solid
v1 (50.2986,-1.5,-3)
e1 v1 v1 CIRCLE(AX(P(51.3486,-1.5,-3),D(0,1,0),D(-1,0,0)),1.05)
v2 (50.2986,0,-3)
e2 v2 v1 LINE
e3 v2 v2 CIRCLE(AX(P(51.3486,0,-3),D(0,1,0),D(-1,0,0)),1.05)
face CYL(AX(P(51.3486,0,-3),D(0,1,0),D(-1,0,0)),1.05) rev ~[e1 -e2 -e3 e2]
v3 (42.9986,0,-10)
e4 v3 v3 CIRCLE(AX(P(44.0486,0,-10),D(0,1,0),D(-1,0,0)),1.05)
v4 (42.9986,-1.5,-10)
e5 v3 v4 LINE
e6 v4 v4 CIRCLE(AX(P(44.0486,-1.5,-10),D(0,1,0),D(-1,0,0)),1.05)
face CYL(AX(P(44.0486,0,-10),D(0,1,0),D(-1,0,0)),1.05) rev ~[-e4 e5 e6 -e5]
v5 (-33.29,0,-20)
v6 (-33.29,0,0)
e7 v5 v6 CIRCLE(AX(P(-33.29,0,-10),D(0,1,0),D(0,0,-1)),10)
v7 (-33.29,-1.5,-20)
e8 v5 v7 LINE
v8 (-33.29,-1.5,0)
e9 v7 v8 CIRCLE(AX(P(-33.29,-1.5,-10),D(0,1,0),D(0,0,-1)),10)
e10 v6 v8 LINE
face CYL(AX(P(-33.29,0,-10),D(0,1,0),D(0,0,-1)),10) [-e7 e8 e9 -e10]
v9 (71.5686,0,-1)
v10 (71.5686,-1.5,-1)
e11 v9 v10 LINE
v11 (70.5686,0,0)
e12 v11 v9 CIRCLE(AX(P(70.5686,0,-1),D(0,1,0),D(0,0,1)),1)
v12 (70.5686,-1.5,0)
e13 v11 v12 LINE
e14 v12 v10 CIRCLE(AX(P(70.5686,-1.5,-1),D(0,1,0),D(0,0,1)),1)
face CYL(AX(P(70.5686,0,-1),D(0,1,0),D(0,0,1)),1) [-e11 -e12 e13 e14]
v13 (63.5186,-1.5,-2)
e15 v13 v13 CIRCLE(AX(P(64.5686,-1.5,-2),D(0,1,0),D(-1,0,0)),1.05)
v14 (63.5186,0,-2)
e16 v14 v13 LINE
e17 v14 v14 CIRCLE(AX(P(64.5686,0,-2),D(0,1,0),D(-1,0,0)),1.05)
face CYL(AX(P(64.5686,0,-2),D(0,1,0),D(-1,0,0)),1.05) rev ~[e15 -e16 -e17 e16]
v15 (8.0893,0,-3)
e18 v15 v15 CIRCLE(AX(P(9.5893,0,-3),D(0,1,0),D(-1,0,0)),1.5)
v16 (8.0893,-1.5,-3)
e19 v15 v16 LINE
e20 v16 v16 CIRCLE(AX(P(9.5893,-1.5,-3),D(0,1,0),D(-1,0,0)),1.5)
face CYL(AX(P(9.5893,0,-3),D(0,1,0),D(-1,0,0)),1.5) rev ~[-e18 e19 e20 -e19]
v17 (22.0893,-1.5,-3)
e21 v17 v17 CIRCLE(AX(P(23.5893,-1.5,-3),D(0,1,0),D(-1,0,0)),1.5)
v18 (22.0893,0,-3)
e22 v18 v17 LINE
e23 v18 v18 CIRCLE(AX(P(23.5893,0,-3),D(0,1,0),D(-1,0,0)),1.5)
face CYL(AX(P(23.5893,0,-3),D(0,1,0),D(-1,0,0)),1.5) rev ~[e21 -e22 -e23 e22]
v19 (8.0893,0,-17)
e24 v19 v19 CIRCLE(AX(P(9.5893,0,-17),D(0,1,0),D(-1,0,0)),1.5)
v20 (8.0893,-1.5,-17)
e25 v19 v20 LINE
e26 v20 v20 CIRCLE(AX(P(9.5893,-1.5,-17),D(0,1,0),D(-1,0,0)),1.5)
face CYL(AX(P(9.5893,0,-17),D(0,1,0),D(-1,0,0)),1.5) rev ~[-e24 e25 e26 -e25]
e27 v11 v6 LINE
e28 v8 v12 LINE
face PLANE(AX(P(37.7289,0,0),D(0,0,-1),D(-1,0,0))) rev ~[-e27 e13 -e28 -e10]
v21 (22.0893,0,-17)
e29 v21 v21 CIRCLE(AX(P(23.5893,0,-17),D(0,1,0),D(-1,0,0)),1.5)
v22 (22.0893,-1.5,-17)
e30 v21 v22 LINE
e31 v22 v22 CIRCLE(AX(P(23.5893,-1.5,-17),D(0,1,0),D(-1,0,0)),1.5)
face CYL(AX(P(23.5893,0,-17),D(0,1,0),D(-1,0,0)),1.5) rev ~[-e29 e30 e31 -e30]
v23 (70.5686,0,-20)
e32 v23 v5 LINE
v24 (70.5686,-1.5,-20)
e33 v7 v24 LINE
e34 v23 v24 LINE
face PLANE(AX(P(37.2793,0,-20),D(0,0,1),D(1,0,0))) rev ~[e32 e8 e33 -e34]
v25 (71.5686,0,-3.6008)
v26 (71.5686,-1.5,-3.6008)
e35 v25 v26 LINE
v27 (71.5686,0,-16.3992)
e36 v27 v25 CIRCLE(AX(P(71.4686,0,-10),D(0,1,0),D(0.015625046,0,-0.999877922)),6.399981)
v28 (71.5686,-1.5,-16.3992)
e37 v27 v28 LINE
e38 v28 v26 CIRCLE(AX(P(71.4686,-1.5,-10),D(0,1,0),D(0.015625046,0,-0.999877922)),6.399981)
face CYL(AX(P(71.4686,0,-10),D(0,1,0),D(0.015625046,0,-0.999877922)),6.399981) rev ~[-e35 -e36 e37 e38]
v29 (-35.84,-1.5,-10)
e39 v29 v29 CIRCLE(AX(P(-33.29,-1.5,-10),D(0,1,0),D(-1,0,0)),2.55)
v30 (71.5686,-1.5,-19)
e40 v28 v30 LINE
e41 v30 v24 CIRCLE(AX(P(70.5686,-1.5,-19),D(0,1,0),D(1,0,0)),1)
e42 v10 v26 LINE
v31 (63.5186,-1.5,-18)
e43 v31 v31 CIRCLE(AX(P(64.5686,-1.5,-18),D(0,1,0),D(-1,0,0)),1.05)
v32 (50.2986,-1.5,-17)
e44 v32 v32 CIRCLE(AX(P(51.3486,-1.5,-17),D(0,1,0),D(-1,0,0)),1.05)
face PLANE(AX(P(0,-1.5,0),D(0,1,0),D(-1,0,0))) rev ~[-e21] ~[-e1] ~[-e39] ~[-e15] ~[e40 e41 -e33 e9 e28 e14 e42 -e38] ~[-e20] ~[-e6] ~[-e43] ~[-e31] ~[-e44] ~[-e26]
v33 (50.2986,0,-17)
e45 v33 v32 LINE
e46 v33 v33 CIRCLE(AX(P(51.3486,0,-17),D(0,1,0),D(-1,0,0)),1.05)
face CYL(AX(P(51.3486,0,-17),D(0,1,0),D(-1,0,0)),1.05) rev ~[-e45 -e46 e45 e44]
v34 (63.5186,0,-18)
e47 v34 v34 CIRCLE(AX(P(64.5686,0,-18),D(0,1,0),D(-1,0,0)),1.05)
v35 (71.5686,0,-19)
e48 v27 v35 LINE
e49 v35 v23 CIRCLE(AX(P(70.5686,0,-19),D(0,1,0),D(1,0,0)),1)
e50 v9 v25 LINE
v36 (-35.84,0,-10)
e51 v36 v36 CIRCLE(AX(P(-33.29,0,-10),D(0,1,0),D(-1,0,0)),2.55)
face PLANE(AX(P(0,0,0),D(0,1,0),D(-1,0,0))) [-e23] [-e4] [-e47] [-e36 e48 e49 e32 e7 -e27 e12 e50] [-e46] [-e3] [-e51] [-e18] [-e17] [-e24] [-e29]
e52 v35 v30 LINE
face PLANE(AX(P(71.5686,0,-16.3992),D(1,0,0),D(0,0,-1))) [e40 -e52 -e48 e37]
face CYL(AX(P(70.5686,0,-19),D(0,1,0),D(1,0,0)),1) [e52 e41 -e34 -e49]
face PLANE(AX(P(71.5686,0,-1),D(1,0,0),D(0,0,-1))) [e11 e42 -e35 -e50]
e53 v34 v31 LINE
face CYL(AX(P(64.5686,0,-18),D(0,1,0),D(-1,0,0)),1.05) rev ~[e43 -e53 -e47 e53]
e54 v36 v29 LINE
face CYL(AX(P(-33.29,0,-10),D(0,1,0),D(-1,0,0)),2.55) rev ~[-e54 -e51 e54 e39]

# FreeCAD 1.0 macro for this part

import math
import FreeCAD as App
import Part
import Sketcher
from FreeCAD import Vector
Q = App.Units.Quantity

doc = App.newDocument("Part")
body = doc.addObject("PartDesign::Body", "Body")

# Sketch on XZ plane
sketch1 = doc.addObject("Sketcher::SketchObject", "Sketch")
body.addObject(sketch1)
sketch1.AttachmentSupport = (doc.XZ_Plane, [""])
sketch1.MapMode = "FlatFace"
sketch1.addGeometry([
    Part.ArcOfCircle(Part.Circle(Vector(70.5686, -1, 0), Vector(0, 0, 1), 1), math.radians(0), math.radians(90)),  # 0
    Part.LineSegment(Vector(71.5686, -1, 0), Vector(71.5686, -3.6008, 0)),  # 1
    Part.ArcOfCircle(Part.Circle(Vector(71.4686, -10, 0), Vector(0, 0, 1), 6.399981), math.radians(89.104714), math.radians(270.895286)),  # 2
    Part.LineSegment(Vector(71.5686, -16.3992, 0), Vector(71.5686, -19, 0)),  # 3
    Part.ArcOfCircle(Part.Circle(Vector(70.5686, -19, 0), Vector(0, 0, 1), 1), math.radians(-90), math.radians(0)),  # 4
    Part.LineSegment(Vector(70.5686, -20, 0), Vector(-33.29, -20, 0)),  # 5
    Part.ArcOfCircle(Part.Circle(Vector(-33.29, -10, 0), Vector(0, 0, 1), 10), math.radians(90), math.radians(270)),  # 6
    Part.LineSegment(Vector(-33.29, 0, 0), Vector(70.5686, 0, 0)),  # 7
    Part.Circle(Vector(9.5893, -3, 0), Vector(0, 0, 1), 1.5),  # 8
    Part.Circle(Vector(23.5893, -17, 0), Vector(0, 0, 1), 1.5),  # 9
    Part.Circle(Vector(9.5893, -17, 0), Vector(0, 0, 1), 1.5),  # 10
    Part.Circle(Vector(23.5893, -3, 0), Vector(0, 0, 1), 1.5),  # 11
    Part.Circle(Vector(64.5686, -2, 0), Vector(0, 0, 1), 1.05),  # 12
    Part.Circle(Vector(64.5686, -18, 0), Vector(0, 0, 1), 1.05),  # 13
    Part.Circle(Vector(51.3486, -17, 0), Vector(0, 0, 1), 1.05),  # 14
    Part.Circle(Vector(44.0486, -10, 0), Vector(0, 0, 1), 1.05),  # 15
    Part.Circle(Vector(51.3486, -3, 0), Vector(0, 0, 1), 1.05),  # 16
    Part.Circle(Vector(-33.29, -10, 0), Vector(0, 0, 1), 2.55),  # 17
], False)
sketch1.addConstraint([
    Sketcher.Constraint("Tangent", 0, 1, 1, 1),
    Sketcher.Constraint("Coincident", 1, 2, 2, 1),
    Sketcher.Constraint("Coincident", 2, 2, 3, 1),
    Sketcher.Constraint("Tangent", 3, 2, 4, 2),
    Sketcher.Constraint("Tangent", 4, 1, 5, 1),
    Sketcher.Constraint("Tangent", 5, 2, 6, 2),
    Sketcher.Constraint("Tangent", 6, 1, 7, 1),
    Sketcher.Constraint("Tangent", 7, 2, 0, 2),
    Sketcher.Constraint("Vertical", 1),
    Sketcher.Constraint("Vertical", 3),
    Sketcher.Constraint("Horizontal", 5),
    Sketcher.Constraint("Horizontal", 7),
    Sketcher.Constraint("Coincident", 17, 3, 6, 3),
    Sketcher.Constraint("Equal", 0, 4),
    Sketcher.Constraint("Equal", 8, 9),
    Sketcher.Constraint("Equal", 9, 10),
    Sketcher.Constraint("Equal", 10, 11),
    Sketcher.Constraint("Equal", 12, 13),
    Sketcher.Constraint("Equal", 13, 14),
    Sketcher.Constraint("Equal", 14, 15),
    Sketcher.Constraint("Equal", 15, 16),
    Sketcher.Constraint("PointOnObject", 6, 1, -1),
    Sketcher.Constraint("Horizontal", 2, 3, 6, 3),
    Sketcher.Constraint("Horizontal", 9, 3, 10, 3),
    Sketcher.Constraint("Horizontal", 8, 3, 11, 3),
    Sketcher.Constraint("Horizontal", 10, 3, 14, 3),
    Sketcher.Constraint("Horizontal", 6, 3, 15, 3),
    Sketcher.Constraint("Horizontal", 11, 3, 16, 3),
    Sketcher.Constraint("Vertical", 0, 3, 4, 3),
    Sketcher.Constraint("Vertical", 8, 3, 10, 3),
    Sketcher.Constraint("Vertical", 9, 3, 11, 3),
    Sketcher.Constraint("Vertical", 12, 3, 13, 3),
    Sketcher.Constraint("Vertical", 14, 3, 16, 3),
    Sketcher.Constraint("Diameter", 8, Q("3 mm")),
    Sketcher.Constraint("Radius", 0, Q("1 mm")),
    Sketcher.Constraint("Radius", 6, Q("10 mm")),
    Sketcher.Constraint("Diameter", 12, Q("2.1 mm")),
    Sketcher.Constraint("Diameter", 17, Q("5.1 mm")),
    Sketcher.Constraint("Radius", 2, Q("6.4 mm")),
    Sketcher.Constraint("DistanceY", 8, 3, -1, 1, Q("3 mm")),
    Sketcher.Constraint("DistanceY", 9, 3, -1, 1, Q("17 mm")),
    Sketcher.Constraint("DistanceY", 12, 3, -1, 1, Q("2 mm")),
    Sketcher.Constraint("DistanceY", 13, 3, -1, 1, Q("18 mm")),
    Sketcher.Constraint("DistanceX", 8, 3, 9, 3, Q("14 mm")),
    Sketcher.Constraint("DistanceX", 12, 3, 0, 3, Q("6 mm")),
    Sketcher.Constraint("DistanceX", 0, 3, 2, 3, Q("0.9 mm")),
    Sketcher.Constraint("DistanceX", 15, 3, 14, 3, Q("7.3 mm")),
    Sketcher.Constraint("DistanceX", 6, 3, -1, 1, Q("33.29 mm")),
    Sketcher.Constraint("DistanceX", 14, 3, 13, 3, Q("13.22 mm")),
    Sketcher.Constraint("DistanceX", 5, 2, 5, 1, Q("103.8586 mm")),
    Sketcher.Constraint("DistanceX", -1, 1, 8, 3, Q("9.5893 mm")),
])
pad1 = doc.addObject("PartDesign::Pad", "Pad")
body.addObject(pad1)
pad1.Profile = sketch1
pad1.Length = 1.5

doc.recompute()
